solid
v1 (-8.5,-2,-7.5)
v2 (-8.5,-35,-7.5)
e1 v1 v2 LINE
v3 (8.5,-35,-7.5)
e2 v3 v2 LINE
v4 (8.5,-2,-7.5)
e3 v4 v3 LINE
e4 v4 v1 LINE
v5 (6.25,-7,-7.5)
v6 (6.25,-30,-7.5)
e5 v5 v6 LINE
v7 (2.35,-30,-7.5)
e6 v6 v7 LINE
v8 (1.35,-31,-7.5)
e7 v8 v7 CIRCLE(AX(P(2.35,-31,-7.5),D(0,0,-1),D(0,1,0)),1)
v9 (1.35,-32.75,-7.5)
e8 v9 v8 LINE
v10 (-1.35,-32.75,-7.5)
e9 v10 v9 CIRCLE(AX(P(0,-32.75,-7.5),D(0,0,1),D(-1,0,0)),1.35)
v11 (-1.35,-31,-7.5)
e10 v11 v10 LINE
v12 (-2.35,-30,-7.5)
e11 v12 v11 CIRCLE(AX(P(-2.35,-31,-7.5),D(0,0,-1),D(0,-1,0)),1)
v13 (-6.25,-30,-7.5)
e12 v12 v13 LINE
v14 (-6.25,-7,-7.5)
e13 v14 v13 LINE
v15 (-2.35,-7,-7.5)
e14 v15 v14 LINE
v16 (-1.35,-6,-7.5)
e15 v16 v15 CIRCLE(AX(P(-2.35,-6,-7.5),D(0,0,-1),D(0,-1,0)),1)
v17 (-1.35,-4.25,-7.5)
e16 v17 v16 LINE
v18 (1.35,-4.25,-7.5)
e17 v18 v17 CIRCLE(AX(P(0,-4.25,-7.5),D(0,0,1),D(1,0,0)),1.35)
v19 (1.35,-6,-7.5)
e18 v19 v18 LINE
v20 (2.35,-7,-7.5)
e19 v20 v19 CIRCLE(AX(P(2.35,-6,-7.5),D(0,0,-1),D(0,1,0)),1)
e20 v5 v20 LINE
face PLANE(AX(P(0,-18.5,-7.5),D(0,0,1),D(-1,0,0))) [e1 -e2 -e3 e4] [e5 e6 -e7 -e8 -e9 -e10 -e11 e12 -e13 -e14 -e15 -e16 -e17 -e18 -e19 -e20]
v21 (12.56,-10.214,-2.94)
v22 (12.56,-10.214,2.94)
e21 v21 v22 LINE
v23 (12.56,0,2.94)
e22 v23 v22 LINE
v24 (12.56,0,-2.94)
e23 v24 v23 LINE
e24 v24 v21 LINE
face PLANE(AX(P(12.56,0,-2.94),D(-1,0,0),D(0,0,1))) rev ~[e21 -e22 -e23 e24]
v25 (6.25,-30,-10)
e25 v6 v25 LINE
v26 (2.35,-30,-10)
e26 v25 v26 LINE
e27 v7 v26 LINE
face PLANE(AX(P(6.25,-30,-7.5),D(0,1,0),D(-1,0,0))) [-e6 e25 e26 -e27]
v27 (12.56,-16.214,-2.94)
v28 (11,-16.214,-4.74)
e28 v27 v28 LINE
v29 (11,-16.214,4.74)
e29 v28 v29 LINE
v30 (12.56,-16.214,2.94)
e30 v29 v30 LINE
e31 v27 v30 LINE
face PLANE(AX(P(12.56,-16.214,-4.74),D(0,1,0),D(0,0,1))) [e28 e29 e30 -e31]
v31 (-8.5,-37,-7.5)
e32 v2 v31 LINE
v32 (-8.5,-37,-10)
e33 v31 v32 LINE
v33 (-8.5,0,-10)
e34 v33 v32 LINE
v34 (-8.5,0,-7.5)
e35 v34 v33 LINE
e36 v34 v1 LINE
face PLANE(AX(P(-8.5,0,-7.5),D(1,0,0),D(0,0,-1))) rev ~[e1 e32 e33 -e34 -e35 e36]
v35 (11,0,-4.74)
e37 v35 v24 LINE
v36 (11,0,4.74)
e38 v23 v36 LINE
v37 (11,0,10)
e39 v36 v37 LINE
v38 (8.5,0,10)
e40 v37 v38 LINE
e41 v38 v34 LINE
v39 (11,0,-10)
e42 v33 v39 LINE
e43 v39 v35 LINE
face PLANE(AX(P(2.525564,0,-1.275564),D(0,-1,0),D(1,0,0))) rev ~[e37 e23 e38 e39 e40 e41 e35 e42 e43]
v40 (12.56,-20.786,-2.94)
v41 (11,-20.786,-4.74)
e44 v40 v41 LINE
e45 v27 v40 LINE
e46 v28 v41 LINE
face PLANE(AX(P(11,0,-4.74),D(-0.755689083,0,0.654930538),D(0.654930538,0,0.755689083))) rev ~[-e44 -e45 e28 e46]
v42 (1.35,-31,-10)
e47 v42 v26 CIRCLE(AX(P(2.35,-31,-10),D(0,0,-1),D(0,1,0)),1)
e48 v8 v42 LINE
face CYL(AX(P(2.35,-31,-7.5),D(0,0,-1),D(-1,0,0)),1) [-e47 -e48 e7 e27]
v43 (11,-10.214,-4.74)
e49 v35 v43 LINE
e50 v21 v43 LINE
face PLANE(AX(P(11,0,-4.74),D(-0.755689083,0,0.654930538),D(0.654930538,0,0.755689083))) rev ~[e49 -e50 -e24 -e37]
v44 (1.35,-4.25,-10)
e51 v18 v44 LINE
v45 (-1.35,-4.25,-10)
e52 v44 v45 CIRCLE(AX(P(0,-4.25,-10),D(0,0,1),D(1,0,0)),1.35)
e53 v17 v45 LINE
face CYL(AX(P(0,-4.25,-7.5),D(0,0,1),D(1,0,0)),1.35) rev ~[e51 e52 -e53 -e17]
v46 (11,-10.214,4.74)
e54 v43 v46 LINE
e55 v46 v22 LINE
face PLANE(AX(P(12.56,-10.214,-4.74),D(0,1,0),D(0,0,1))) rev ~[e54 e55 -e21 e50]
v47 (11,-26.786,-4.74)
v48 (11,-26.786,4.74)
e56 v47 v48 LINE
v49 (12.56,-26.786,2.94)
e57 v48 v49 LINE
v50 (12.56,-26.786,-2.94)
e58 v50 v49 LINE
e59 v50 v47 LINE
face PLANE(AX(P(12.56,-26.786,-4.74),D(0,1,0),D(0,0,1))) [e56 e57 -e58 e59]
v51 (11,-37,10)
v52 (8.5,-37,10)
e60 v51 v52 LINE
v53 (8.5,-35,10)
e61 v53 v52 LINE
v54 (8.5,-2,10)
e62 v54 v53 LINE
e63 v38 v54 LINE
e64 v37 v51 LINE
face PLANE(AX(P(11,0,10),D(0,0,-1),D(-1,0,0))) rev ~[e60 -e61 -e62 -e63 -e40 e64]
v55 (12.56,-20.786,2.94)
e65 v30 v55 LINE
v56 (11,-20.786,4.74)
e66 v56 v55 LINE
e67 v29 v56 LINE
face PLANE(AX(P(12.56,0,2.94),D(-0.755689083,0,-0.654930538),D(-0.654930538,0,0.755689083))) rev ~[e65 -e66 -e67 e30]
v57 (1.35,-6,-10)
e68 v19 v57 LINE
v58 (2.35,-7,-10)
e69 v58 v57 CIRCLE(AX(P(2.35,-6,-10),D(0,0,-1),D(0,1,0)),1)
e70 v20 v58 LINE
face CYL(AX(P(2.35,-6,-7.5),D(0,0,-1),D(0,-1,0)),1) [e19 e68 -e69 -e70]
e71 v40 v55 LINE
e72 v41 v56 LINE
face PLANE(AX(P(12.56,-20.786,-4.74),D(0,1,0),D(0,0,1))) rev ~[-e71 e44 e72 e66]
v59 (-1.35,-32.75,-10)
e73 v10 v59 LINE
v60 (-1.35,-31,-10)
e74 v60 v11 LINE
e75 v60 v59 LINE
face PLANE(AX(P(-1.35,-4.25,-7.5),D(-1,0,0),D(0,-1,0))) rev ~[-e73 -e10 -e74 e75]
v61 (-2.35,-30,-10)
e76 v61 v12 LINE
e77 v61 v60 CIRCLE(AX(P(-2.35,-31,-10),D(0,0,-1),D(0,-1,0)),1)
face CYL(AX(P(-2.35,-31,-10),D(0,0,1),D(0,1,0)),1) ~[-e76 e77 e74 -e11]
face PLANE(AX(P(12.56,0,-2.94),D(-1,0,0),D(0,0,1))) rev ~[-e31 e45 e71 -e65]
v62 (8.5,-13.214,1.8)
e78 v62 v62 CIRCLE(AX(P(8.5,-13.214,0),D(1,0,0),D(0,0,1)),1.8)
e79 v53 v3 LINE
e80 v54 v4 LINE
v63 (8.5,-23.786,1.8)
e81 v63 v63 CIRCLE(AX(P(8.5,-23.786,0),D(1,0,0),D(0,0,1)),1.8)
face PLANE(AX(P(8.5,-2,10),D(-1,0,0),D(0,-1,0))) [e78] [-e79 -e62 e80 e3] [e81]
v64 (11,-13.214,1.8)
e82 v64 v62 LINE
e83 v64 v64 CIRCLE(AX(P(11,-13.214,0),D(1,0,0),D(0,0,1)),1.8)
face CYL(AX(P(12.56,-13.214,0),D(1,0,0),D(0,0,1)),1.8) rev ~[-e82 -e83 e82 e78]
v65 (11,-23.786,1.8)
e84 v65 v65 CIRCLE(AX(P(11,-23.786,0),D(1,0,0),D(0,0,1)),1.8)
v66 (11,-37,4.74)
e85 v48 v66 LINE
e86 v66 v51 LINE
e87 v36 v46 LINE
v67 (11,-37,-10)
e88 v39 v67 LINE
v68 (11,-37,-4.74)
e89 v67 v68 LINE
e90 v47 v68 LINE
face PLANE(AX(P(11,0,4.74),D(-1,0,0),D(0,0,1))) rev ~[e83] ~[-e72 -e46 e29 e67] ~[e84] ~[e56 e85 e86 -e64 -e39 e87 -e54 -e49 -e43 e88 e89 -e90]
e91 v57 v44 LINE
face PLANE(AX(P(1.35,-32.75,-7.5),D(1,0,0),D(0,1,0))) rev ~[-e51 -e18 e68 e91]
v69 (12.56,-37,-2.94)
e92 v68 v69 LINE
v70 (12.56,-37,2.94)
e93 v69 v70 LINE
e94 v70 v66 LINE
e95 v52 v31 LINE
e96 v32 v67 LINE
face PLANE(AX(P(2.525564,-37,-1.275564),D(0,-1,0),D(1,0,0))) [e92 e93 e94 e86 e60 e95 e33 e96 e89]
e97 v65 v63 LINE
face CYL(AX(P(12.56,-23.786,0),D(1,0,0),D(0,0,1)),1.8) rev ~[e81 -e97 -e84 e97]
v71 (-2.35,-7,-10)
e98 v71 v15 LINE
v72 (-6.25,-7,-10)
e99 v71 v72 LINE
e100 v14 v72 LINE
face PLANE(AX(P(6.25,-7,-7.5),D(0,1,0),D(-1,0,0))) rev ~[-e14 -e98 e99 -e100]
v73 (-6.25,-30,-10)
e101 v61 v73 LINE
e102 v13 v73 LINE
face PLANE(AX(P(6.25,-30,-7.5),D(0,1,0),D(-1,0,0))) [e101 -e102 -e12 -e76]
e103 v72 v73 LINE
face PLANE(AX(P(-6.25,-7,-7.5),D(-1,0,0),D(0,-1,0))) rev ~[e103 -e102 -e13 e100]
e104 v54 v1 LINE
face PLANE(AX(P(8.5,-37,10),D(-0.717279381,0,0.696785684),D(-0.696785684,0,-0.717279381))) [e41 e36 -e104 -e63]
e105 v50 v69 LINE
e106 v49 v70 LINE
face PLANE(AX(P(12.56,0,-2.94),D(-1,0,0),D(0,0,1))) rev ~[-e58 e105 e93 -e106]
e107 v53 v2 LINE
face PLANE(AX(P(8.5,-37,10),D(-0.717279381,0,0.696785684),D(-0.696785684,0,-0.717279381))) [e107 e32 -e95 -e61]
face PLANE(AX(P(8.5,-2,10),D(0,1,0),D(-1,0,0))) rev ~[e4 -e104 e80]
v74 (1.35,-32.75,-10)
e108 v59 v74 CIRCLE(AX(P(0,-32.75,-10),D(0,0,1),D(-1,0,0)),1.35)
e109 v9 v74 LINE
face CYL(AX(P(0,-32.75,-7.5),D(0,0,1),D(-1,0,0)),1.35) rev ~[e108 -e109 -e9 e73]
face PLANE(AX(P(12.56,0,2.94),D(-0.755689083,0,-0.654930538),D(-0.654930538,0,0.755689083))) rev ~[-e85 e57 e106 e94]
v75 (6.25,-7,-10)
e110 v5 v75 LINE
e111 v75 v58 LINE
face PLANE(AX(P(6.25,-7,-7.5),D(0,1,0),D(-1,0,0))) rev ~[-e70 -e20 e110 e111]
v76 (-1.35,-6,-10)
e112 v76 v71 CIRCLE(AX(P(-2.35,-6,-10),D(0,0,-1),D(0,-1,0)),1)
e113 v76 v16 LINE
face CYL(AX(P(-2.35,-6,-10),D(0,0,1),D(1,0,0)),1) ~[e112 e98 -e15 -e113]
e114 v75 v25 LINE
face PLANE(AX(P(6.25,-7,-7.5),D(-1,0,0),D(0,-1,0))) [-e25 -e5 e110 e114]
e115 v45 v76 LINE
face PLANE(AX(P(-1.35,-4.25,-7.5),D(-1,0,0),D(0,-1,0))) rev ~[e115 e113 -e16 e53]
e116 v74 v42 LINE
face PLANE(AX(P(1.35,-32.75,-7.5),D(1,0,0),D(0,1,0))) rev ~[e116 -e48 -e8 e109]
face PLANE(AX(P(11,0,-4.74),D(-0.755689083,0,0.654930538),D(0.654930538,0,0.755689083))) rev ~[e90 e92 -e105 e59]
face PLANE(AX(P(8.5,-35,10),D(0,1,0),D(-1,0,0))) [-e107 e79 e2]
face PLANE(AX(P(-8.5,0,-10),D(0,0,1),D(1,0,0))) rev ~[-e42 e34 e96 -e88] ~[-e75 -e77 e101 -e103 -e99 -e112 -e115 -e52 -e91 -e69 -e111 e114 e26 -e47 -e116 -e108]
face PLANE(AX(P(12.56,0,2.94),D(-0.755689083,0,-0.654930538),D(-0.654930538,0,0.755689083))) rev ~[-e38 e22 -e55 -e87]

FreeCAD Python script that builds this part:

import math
import FreeCAD as App
import Part
import Sketcher

V = App.Vector
Q = App.Units.Quantity


def edges_at(feature, points):
    """Names of the edges that pass closest to the given points."""
    edges = feature.Shape.Edges
    near = lambda p: min(range(len(edges)), key=lambda i: edges[i].distToShape(Part.Vertex(*p))[0])
    return sorted({f"Edge{near(p) + 1}" for p in points})


def add_polygon(sketch, points):
    """Adds a closed chain of lines whose ends are joined by coincident constraints."""
    first, n = sketch.GeometryCount, len(points)
    for a, b in zip(points, points[1:] + points[:1]):
        sketch.addGeometry(Part.LineSegment(App.Vector(*a, 0), App.Vector(*b, 0)), False)
    for i in range(n):
        sketch.addConstraint(Sketcher.Constraint("Coincident", first + i, 2, first + (i + 1) % n, 1))

doc = App.newDocument("Part")
body = doc.addObject("PartDesign::Body", "Body")

sketch1 = body.newObject("Sketcher::SketchObject", "Sketch")
sketch1.AttachmentSupport = (doc.getObject("XZ_Plane"), [""])
sketch1.MapMode = "FlatFace"
add_polygon(sketch1, [(-8.5, -7.5), (-8.5, -10), (11, -10), (11, -4.7), (12.6, -2.9), (12.6, 2.9), (11, 4.7), (11, 10), (8.5, 10), (8.5, -7.5)])
sketch1.addConstraint(Sketcher.Constraint("Vertical", 0))
sketch1.addConstraint(Sketcher.Constraint("Horizontal", 1))
sketch1.addConstraint(Sketcher.Constraint("Vertical", 2))
sketch1.addConstraint(Sketcher.Constraint("Vertical", 4))
sketch1.addConstraint(Sketcher.Constraint("Vertical", 6))
sketch1.addConstraint(Sketcher.Constraint("Horizontal", 7))
sketch1.addConstraint(Sketcher.Constraint("Vertical", 8))
sketch1.addConstraint(Sketcher.Constraint("Horizontal", 9))
sketch1.addConstraint(Sketcher.Constraint("Symmetric", 0, 2, 7, 2, -1, 1))
sketch1.addConstraint(Sketcher.Constraint("Symmetric", 2, 2, 5, 2, -1))
sketch1.addConstraint(Sketcher.Constraint("Equal", 7, 0))
sketch1.addConstraint(Sketcher.Constraint("Equal", 3, 5))
sketch1.addConstraint(Sketcher.Constraint("DistanceX", 9, 2, 9, 1, Q("17 mm")))
sketch1.addConstraint(Sketcher.Constraint("DistanceX", 1, 1, 1, 2, Q("19.5 mm")))
sketch1.addConstraint(Sketcher.Constraint("DistanceY", 8, 2, 8, 1, Q("17.5 mm")))
sketch1.addConstraint(Sketcher.Constraint("DistanceY", 2, 1, 2, 2, Q("5.26 mm")))
sketch1.addConstraint(Sketcher.Constraint("DistanceY", 4, 1, 4, 2, Q("5.88 mm")))
sketch1.addConstraint(Sketcher.Constraint("DistanceX", -1, 1, 3, 2, Q("12.56 mm")))
pad1 = body.newObject("PartDesign::Pad", "Pad")
pad1.Profile = sketch1
pad1.Length = 37

sketch2 = body.newObject("Sketcher::SketchObject", "Sketch001")
sketch2.AttachmentSupport = (doc.getObject("XZ_Plane"), [""])
sketch2.MapMode = "FlatFace"
sketch2.AttachmentOffset = App.Placement(V(0, 0, 37), App.Rotation())
add_polygon(sketch2, [(8, 10), (-8, -8), (8, -8)])
sketch2.addConstraint(Sketcher.Constraint("Horizontal", 1))
sketch2.addConstraint(Sketcher.Constraint("Vertical", 2))
sketch2.addConstraint(Sketcher.Constraint("DistanceX", 1, 1, 1, 2, Q("17 mm")))
sketch2.addConstraint(Sketcher.Constraint("DistanceY", 2, 1, 2, 2, Q("17.5 mm")))
sketch2.addConstraint(Sketcher.Constraint("DistanceY", -1, 1, 2, 2, Q("10 mm")))
sketch2.addConstraint(Sketcher.Constraint("DistanceX", 0, 2, -1, 1, Q("8.5 mm")))
pad2 = body.newObject("PartDesign::Pad", "Pad001")
pad2.Profile = sketch2
pad2.Length = 37
pad2.Reversed = True

sketch3 = body.newObject("Sketcher::SketchObject", "Sketch002")
sketch3.AttachmentSupport = (doc.getObject("XY_Plane"), [""])
sketch3.MapMode = "FlatFace"
sketch3.AttachmentOffset = App.Placement(V(0, 0, 10), App.Rotation())
add_polygon(sketch3, [(8, -35), (8, -2), (-8, -2), (-8, -35)])
sketch3.addConstraint(Sketcher.Constraint("Vertical", 0))
sketch3.addConstraint(Sketcher.Constraint("Horizontal", 1))
sketch3.addConstraint(Sketcher.Constraint("Vertical", 2))
sketch3.addConstraint(Sketcher.Constraint("Horizontal", 3))
sketch3.addConstraint(Sketcher.Constraint("DistanceX", 1, 2, 1, 1, Q("17 mm")))
sketch3.addConstraint(Sketcher.Constraint("DistanceY", 0, 1, 0, 2, Q("33 mm")))
sketch3.addConstraint(Sketcher.Constraint("DistanceY", 0, 2, -1, 1, Q("2 mm")))
sketch3.addConstraint(Sketcher.Constraint("DistanceX", -1, 1, 0, 2, Q("8.5 mm")))
pocket1 = body.newObject("PartDesign::Pocket", "Pocket")
pocket1.Profile = sketch3
pocket1.Length = 17.5

sketch4 = body.newObject("Sketcher::SketchObject", "Sketch003")
sketch4.AttachmentSupport = (doc.getObject("YZ_Plane"), [""])
sketch4.MapMode = "FlatFace"
sketch4.AttachmentOffset = App.Placement(V(0, 0, 12.56), App.Rotation())
sketch4.addGeometry(Part.Circle(V(-23.8, 0, 0), V(0, 0, 1), 1.8), False)
sketch4.addGeometry(Part.Circle(V(-13.2, 0, 0), V(0, 0, 1), 1.8), False)
sketch4.addConstraint(Sketcher.Constraint("Equal", 0, 1))
sketch4.addConstraint(Sketcher.Constraint("PointOnObject", 0, 3, -1))
sketch4.addConstraint(Sketcher.Constraint("PointOnObject", 1, 3, -1))
sketch4.addConstraint(Sketcher.Constraint("Diameter", 0, Q("3.6 mm")))
sketch4.addConstraint(Sketcher.Constraint("DistanceX", 0, 3, -1, 1, Q("23.786 mm")))
sketch4.addConstraint(Sketcher.Constraint("DistanceX", 1, 3, -1, 1, Q("13.214 mm")))
pocket2 = body.newObject("PartDesign::Pocket", "Pocket001")
pocket2.Profile = sketch4
pocket2.Type = "ThroughAll"

sketch5 = body.newObject("Sketcher::SketchObject", "Sketch004")
sketch5.AttachmentSupport = (doc.getObject("YZ_Plane"), [""])
sketch5.MapMode = "FlatFace"
sketch5.AttachmentOffset = App.Placement(V(0, 0, 12.56), App.Rotation())
add_polygon(sketch5, [(-27, -5), (-21, -5), (-21, 5), (-27, 5)])
add_polygon(sketch5, [(-16, -5), (-10, -5), (-10, 5), (-16, 5)])
sketch5.addConstraint(Sketcher.Constraint("Horizontal", 0))
sketch5.addConstraint(Sketcher.Constraint("Vertical", 1))
sketch5.addConstraint(Sketcher.Constraint("Horizontal", 2))
sketch5.addConstraint(Sketcher.Constraint("Vertical", 3))
sketch5.addConstraint(Sketcher.Constraint("Horizontal", 4))
sketch5.addConstraint(Sketcher.Constraint("Vertical", 5))
sketch5.addConstraint(Sketcher.Constraint("Horizontal", 6))
sketch5.addConstraint(Sketcher.Constraint("Vertical", 7))
sketch5.addConstraint(Sketcher.Constraint("Horizontal", 3, 2, 4, 2))
sketch5.addConstraint(Sketcher.Constraint("Horizontal", 2, 2, 5, 2))
sketch5.addConstraint(Sketcher.Constraint("Equal", 2, 4))
sketch5.addConstraint(Sketcher.Constraint("DistanceX", 0, 1, 0, 2, Q("6 mm")))
sketch5.addConstraint(Sketcher.Constraint("DistanceY", 1, 1, 1, 2, Q("9.48 mm")))
sketch5.addConstraint(Sketcher.Constraint("DistanceY", 0, 2, -1, 1, Q("4.74 mm")))
sketch5.addConstraint(Sketcher.Constraint("DistanceX", 0, 2, -1, 1, Q("20.786 mm")))
sketch5.addConstraint(Sketcher.Constraint("DistanceX", 4, 2, -1, 1, Q("10.214 mm")))
pocket3 = body.newObject("PartDesign::Pocket", "Pocket002")
pocket3.Profile = sketch5
pocket3.Length = 1.56

sketch6 = body.newObject("Sketcher::SketchObject", "Sketch005")
sketch6.AttachmentSupport = (doc.getObject("XY_Plane"), [""])
sketch6.MapMode = "FlatFace"
sketch6.AttachmentOffset = App.Placement(V(0, 0, -7.5), App.Rotation())
add_polygon(sketch6, [(6, -30), (6, -7), (-6, -7), (-6, -30)])
sketch6.addConstraint(Sketcher.Constraint("Vertical", 0))
sketch6.addConstraint(Sketcher.Constraint("Horizontal", 1))
sketch6.addConstraint(Sketcher.Constraint("Vertical", 2))
sketch6.addConstraint(Sketcher.Constraint("Horizontal", 3))
sketch6.addConstraint(Sketcher.Constraint("DistanceY", 0, 1, 0, 2, Q("23 mm")))
sketch6.addConstraint(Sketcher.Constraint("DistanceX", 1, 2, 1, 1, Q("12.5 mm")))
sketch6.addConstraint(Sketcher.Constraint("DistanceY", 0, 2, -1, 1, Q("7 mm")))
sketch6.addConstraint(Sketcher.Constraint("DistanceX", -1, 1, 0, 2, Q("6.25 mm")))
pocket4 = body.newObject("PartDesign::Pocket", "Pocket003")
pocket4.Profile = sketch6
pocket4.Type = "ThroughAll"

sketch7 = body.newObject("Sketcher::SketchObject", "Sketch006")
sketch7.AttachmentSupport = (doc.getObject("XY_Plane"), [""])
sketch7.MapMode = "FlatFace"
sketch7.AttachmentOffset = App.Placement(V(0, 0, -7.5), App.Rotation())
sketch7.addGeometry(Part.ArcOfCircle(Part.Circle(V(0, -32.8, 0), V(0, 0, 1), 1.4), math.radians(180), math.radians(360)), False)
sketch7.addGeometry(Part.LineSegment(V(1.4, -32.8, 0), V(1.4, -4.2, 0)), False)
sketch7.addGeometry(Part.ArcOfCircle(Part.Circle(V(0, -4.2, 0), V(0, 0, 1), 1.4), math.radians(0), math.radians(180)), False)
sketch7.addGeometry(Part.LineSegment(V(-1.4, -4.2, 0), V(-1.4, -32.8, 0)), False)
sketch7.addConstraint(Sketcher.Constraint("Tangent", 0, 2, 1, 1))
sketch7.addConstraint(Sketcher.Constraint("Tangent", 1, 2, 2, 1))
sketch7.addConstraint(Sketcher.Constraint("Tangent", 2, 2, 3, 1))
sketch7.addConstraint(Sketcher.Constraint("Tangent", 3, 2, 0, 1))
sketch7.addConstraint(Sketcher.Constraint("Vertical", 1))
sketch7.addConstraint(Sketcher.Constraint("Vertical", 3))
sketch7.addConstraint(Sketcher.Constraint("PointOnObject", 0, 3, -2))
sketch7.addConstraint(Sketcher.Constraint("Radius", 0, Q("1.35 mm")))
sketch7.addConstraint(Sketcher.Constraint("DistanceY", 1, 1, 1, 2, Q("28.5 mm")))
sketch7.addConstraint(Sketcher.Constraint("DistanceY", 0, 3, -1, 1, Q("32.75 mm")))
pocket5 = body.newObject("PartDesign::Pocket", "Pocket004")
pocket5.Profile = sketch7
pocket5.Type = "ThroughAll"
doc.recompute()

fillet = body.newObject("PartDesign::Fillet", "Fillet")
fillet.Base = (pocket5, edges_at(pocket5, [
    (1.35, -30, -8.75),
    (-1.35, -30, -8.75),
    (1.35, -7, -8.75),
    (-1.35, -7, -8.75),
]))
fillet.Radius = 1

doc.recompute()
